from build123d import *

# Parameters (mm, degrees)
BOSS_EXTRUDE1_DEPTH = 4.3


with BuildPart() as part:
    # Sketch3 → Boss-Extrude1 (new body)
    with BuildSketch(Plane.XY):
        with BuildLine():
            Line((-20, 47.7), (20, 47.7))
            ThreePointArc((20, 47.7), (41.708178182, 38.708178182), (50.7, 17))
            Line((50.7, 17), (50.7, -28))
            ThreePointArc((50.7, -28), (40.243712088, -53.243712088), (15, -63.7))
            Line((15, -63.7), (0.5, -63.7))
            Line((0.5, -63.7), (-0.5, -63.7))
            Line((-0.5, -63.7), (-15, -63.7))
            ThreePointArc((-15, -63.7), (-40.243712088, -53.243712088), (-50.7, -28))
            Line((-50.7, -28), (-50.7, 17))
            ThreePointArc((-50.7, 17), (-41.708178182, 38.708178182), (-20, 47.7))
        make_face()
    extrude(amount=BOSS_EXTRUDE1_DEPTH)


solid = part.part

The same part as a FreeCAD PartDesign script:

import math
import FreeCAD as App
import Part
import Sketcher

V = App.Vector
Q = App.Units.Quantity

doc = App.newDocument("Part")
body = doc.addObject("PartDesign::Body", "Body")

# Sketch on XY plane
sketch1 = doc.addObject("Sketcher::SketchObject", "Sketch")
body.addObject(sketch1)
sketch1.AttachmentSupport = (doc.XY_Plane, [""])
sketch1.MapMode = "FlatFace"
sketch1.addGeometry(Part.LineSegment(V(20, 47.7, 0), V(-20, 47.7, 0)), False)
sketch1.addGeometry(Part.ArcOfCircle(Part.Circle(V(-20, 17, 0), V(0, 0, 1), 30.7), math.radians(90), math.radians(180)), False)
sketch1.addGeometry(Part.LineSegment(V(-50.7, 17, 0), V(-50.7, -28, 0)), False)
sketch1.addGeometry(Part.ArcOfCircle(Part.Circle(V(-15, -28, 0), V(0, 0, 1), 35.7), math.radians(-180), math.radians(-90)), False)
sketch1.addGeometry(Part.LineSegment(V(-15, -63.7, 0), V(15, -63.7, 0)), False)
sketch1.addGeometry(Part.ArcOfCircle(Part.Circle(V(15, -28, 0), V(0, 0, 1), 35.7), math.radians(-90), math.radians(0)), False)
sketch1.addGeometry(Part.LineSegment(V(50.7, -28, 0), V(50.7, 17, 0)), False)
sketch1.addGeometry(Part.ArcOfCircle(Part.Circle(V(20, 17, 0), V(0, 0, 1), 30.7), math.radians(0), math.radians(90)), False)
sketch1.addConstraint(Sketcher.Constraint("Tangent", 0, 2, 1, 1))
sketch1.addConstraint(Sketcher.Constraint("Tangent", 1, 2, 2, 1))
sketch1.addConstraint(Sketcher.Constraint("Tangent", 2, 2, 3, 1))
sketch1.addConstraint(Sketcher.Constraint("Tangent", 3, 2, 4, 1))
sketch1.addConstraint(Sketcher.Constraint("Tangent", 4, 2, 5, 1))
sketch1.addConstraint(Sketcher.Constraint("Tangent", 5, 2, 6, 1))
sketch1.addConstraint(Sketcher.Constraint("Tangent", 6, 2, 7, 1))
sketch1.addConstraint(Sketcher.Constraint("Tangent", 7, 2, 0, 1))
sketch1.addConstraint(Sketcher.Constraint("Horizontal", 0))
sketch1.addConstraint(Sketcher.Constraint("Vertical", 2))
sketch1.addConstraint(Sketcher.Constraint("Horizontal", 4))
sketch1.addConstraint(Sketcher.Constraint("Vertical", 6))
sketch1.addConstraint(Sketcher.Constraint("Equal", 3, 5))
sketch1.addConstraint(Sketcher.Constraint("Equal", 1, 7))
sketch1.addConstraint(Sketcher.Constraint("Radius", 1, Q("30.7 mm")))
sketch1.addConstraint(Sketcher.Constraint("Radius", 3, Q("35.7 mm")))
sketch1.addConstraint(Sketcher.Constraint("DistanceX", 0, 2, 0, 1, Q("40 mm")))
sketch1.addConstraint(Sketcher.Constraint("DistanceY", 2, 2, 2, 1, Q("45 mm")))
sketch1.addConstraint(Sketcher.Constraint("DistanceX", 1, 3, -1, 1, Q("20 mm")))
sketch1.addConstraint(Sketcher.Constraint("DistanceY", -1, 1, 1, 3, Q("17 mm")))
pad1 = doc.addObject("PartDesign::Pad", "Pad")
body.addObject(pad1)
pad1.Profile = sketch1
pad1.Length = 4.3

doc.recompute()
